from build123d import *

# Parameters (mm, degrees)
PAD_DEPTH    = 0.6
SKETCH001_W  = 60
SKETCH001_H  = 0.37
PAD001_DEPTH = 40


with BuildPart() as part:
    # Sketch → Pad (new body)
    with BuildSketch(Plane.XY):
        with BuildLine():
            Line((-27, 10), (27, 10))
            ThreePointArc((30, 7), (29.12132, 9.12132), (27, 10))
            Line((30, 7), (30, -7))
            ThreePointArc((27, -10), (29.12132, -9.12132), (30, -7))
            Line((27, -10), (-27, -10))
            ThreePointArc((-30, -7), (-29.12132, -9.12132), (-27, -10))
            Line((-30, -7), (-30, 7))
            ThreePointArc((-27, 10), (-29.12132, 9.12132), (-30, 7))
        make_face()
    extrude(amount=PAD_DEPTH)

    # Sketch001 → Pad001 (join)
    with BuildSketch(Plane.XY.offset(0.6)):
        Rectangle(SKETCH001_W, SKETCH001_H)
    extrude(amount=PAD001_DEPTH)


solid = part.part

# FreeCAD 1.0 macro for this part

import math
import FreeCAD as App
import Part
import Sketcher

V = App.Vector
Q = App.Units.Quantity

doc = App.newDocument("Part")
body = doc.addObject("PartDesign::Body", "Body")

sketch1 = body.newObject("Sketcher::SketchObject", "Sketch")
sketch1.AttachmentSupport = (doc.getObject("XY_Plane"), [""])
sketch1.MapMode = "FlatFace"
sketch1.addGeometry(Part.LineSegment(V(27, 10, 0), V(-27, 10, 0)), False)
sketch1.addGeometry(Part.ArcOfCircle(Part.Circle(V(-27, 7, 0), V(0, 0, 1), 3), math.radians(90), math.radians(180)), False)
sketch1.addGeometry(Part.LineSegment(V(-30, 7, 0), V(-30, -7, 0)), False)
sketch1.addGeometry(Part.ArcOfCircle(Part.Circle(V(-27, -7, 0), V(0, 0, 1), 3), math.radians(-180), math.radians(-90)), False)
sketch1.addGeometry(Part.LineSegment(V(-27, -10, 0), V(27, -10, 0)), False)
sketch1.addGeometry(Part.ArcOfCircle(Part.Circle(V(27, -7, 0), V(0, 0, 1), 3), math.radians(-90), math.radians(0)), False)
sketch1.addGeometry(Part.LineSegment(V(30, -7, 0), V(30, 7, 0)), False)
sketch1.addGeometry(Part.ArcOfCircle(Part.Circle(V(27, 7, 0), V(0, 0, 1), 3), math.radians(0), math.radians(90)), False)
sketch1.addConstraint(Sketcher.Constraint("Tangent", 0, 2, 1, 1))
sketch1.addConstraint(Sketcher.Constraint("Tangent", 1, 2, 2, 1))
sketch1.addConstraint(Sketcher.Constraint("Tangent", 2, 2, 3, 1))
sketch1.addConstraint(Sketcher.Constraint("Tangent", 3, 2, 4, 1))
sketch1.addConstraint(Sketcher.Constraint("Tangent", 4, 2, 5, 1))
sketch1.addConstraint(Sketcher.Constraint("Tangent", 5, 2, 6, 1))
sketch1.addConstraint(Sketcher.Constraint("Tangent", 6, 2, 7, 1))
sketch1.addConstraint(Sketcher.Constraint("Tangent", 7, 2, 0, 1))
sketch1.addConstraint(Sketcher.Constraint("Horizontal", 0))
sketch1.addConstraint(Sketcher.Constraint("Vertical", 2))
sketch1.addConstraint(Sketcher.Constraint("Horizontal", 4))
sketch1.addConstraint(Sketcher.Constraint("Vertical", 6))
sketch1.addConstraint(Sketcher.Constraint("Equal", 1, 3))
sketch1.addConstraint(Sketcher.Constraint("Equal", 3, 5))
sketch1.addConstraint(Sketcher.Constraint("Equal", 5, 7))
sketch1.addConstraint(Sketcher.Constraint("Symmetric", 1, 3, 5, 3, -1, 1))
sketch1.addConstraint(Sketcher.Constraint("Radius", 1, Q("3.000001 mm")))
sketch1.addConstraint(Sketcher.Constraint("DistanceX", 0, 2, 0, 1, Q("54 mm")))
sketch1.addConstraint(Sketcher.Constraint("DistanceY", 2, 2, 2, 1, Q("14 mm")))
pad1 = body.newObject("PartDesign::Pad", "Pad")
pad1.Profile = sketch1
pad1.Length = 0.6

sketch2 = body.newObject("Sketcher::SketchObject", "Sketch001")
sketch2.AttachmentSupport = (doc.getObject("XY_Plane"), [""])
sketch2.MapMode = "FlatFace"
sketch2.AttachmentOffset = App.Placement(V(0, 0, 0.6), App.Rotation())
sketch2.addGeometry(Part.LineSegment(V(-30, 0.18, 0), V(-30, -0.18, 0)), False)
sketch2.addGeometry(Part.LineSegment(V(-30, -0.18, 0), V(30, -0.18, 0)), False)
sketch2.addGeometry(Part.LineSegment(V(30, -0.18, 0), V(30, 0.18, 0)), False)
sketch2.addGeometry(Part.LineSegment(V(30, 0.18, 0), V(-30, 0.18, 0)), False)
sketch2.addConstraint(Sketcher.Constraint("Coincident", 0, 2, 1, 1))
sketch2.addConstraint(Sketcher.Constraint("Coincident", 1, 2, 2, 1))
sketch2.addConstraint(Sketcher.Constraint("Coincident", 2, 2, 3, 1))
sketch2.addConstraint(Sketcher.Constraint("Coincident", 3, 2, 0, 1))
sketch2.addConstraint(Sketcher.Constraint("Vertical", 0))
sketch2.addConstraint(Sketcher.Constraint("Horizontal", 1))
sketch2.addConstraint(Sketcher.Constraint("Vertical", 2))
sketch2.addConstraint(Sketcher.Constraint("Horizontal", 3))
sketch2.addConstraint(Sketcher.Constraint("Symmetric", 0, 2, 2, 2, -1, 1))
sketch2.addConstraint(Sketcher.Constraint("DistanceX", 1, 1, 1, 2, Q("60 mm")))
sketch2.addConstraint(Sketcher.Constraint("DistanceY", 0, 2, 0, 1, Q("0.37 mm")))
pad2 = body.newObject("PartDesign::Pad", "Pad001")
pad2.Profile = sketch2
pad2.Length = 40

doc.recompute()
